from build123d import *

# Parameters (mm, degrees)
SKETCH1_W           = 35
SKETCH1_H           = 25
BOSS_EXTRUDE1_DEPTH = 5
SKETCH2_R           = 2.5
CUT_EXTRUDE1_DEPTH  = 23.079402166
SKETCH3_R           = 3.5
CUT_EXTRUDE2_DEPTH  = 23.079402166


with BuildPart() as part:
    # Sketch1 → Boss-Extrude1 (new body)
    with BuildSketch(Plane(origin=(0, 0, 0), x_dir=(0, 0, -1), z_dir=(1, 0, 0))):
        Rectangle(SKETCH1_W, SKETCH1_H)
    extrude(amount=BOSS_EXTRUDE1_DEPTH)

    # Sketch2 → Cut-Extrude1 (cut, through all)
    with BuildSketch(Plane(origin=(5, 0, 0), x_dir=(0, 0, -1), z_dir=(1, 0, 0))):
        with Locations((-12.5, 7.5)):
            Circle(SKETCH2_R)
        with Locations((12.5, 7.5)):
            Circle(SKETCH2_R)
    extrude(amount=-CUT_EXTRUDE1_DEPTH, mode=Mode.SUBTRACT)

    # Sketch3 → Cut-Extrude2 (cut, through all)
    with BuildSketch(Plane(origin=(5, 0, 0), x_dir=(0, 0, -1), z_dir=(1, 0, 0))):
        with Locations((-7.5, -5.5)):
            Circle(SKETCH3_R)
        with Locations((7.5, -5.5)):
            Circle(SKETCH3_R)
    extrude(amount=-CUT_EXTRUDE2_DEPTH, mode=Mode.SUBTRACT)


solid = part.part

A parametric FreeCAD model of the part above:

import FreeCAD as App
import Part
import Sketcher
from FreeCAD import Vector


def add_polygon(sketch, points):
    """Adds a closed chain of lines whose ends are joined by coincident constraints."""
    first, n = sketch.GeometryCount, len(points)
    for a, b in zip(points, points[1:] + points[:1]):
        sketch.addGeometry(Part.LineSegment(App.Vector(*a, 0), App.Vector(*b, 0)), False)
    for i in range(n):
        sketch.addConstraint(Sketcher.Constraint("Coincident", first + i, 2, first + (i + 1) % n, 1))

doc = App.newDocument("Part")
body = doc.addObject("PartDesign::Body", "Body")

sketch1 = body.newObject("Sketcher::SketchObject", "Sketch")
sketch1.AttachmentSupport = (doc.getObject("YZ_Plane"), [""])
sketch1.MapMode = "FlatFace"
add_polygon(sketch1, [(12, 18), (-12, 18), (-12, -18), (12, -18)])
sketch1.addConstraint([
    Sketcher.Constraint("Horizontal", 0),
    Sketcher.Constraint("Vertical", 1),
    Sketcher.Constraint("Horizontal", 2),
    Sketcher.Constraint("Vertical", 3),
    Sketcher.Constraint("Symmetric", 0, 2, 2, 2, -1, 1),
    Sketcher.Constraint("DistanceX", 0, 2, 0, 1, 25.0),
    Sketcher.Constraint("DistanceY", 1, 2, 1, 1, 35.0),
])
pad1 = body.newObject("PartDesign::Pad", "Pad")
pad1.Profile = sketch1
pad1.Length = 5

sketch2 = body.newObject("Sketcher::SketchObject", "Sketch001")
sketch2.AttachmentSupport = (doc.getObject("YZ_Plane"), [""])
sketch2.MapMode = "FlatFace"
sketch2.AttachmentOffset = App.Placement(Vector(0, 0, 5), App.Rotation())
sketch2.addGeometry([
    Part.Circle(Vector(7.5, 12.5, 0), Vector(0, 0, 1), 2.5),
    Part.Circle(Vector(7.5, -12.5, 0), Vector(0, 0, 1), 2.5),
], False)
sketch2.addConstraint([
    Sketcher.Constraint("Equal", 0, 1),
    Sketcher.Constraint("Symmetric", 0, 3, 1, 3, -1),
    Sketcher.Constraint("Diameter", 0, 5.0),
    Sketcher.Constraint("DistanceY", 1, 3, 0, 3, 25.0),
    Sketcher.Constraint("DistanceX", -1, 1, 0, 3, 7.5),
])
pocket1 = body.newObject("PartDesign::Pocket", "Pocket")
pocket1.Profile = sketch2
pocket1.Type = "ThroughAll"

sketch3 = body.newObject("Sketcher::SketchObject", "Sketch002")
sketch3.AttachmentSupport = (doc.getObject("YZ_Plane"), [""])
sketch3.MapMode = "FlatFace"
sketch3.AttachmentOffset = App.Placement(Vector(0, 0, 5), App.Rotation())
sketch3.addGeometry([
    Part.Circle(Vector(-5.5, 7.5, 0), Vector(0, 0, 1), 3.5),
    Part.Circle(Vector(-5.5, -7.5, 0), Vector(0, 0, 1), 3.5),
], False)
sketch3.addConstraint([
    Sketcher.Constraint("Equal", 0, 1),
    Sketcher.Constraint("Symmetric", 0, 3, 1, 3, -1),
    Sketcher.Constraint("Diameter", 0, 7.0),
    Sketcher.Constraint("DistanceY", 1, 3, 0, 3, 15.0),
    Sketcher.Constraint("DistanceX", 0, 3, -1, 1, 5.5),
])
pocket2 = body.newObject("PartDesign::Pocket", "Pocket001")
pocket2.Profile = sketch3
pocket2.Type = "ThroughAll"

doc.recompute()
